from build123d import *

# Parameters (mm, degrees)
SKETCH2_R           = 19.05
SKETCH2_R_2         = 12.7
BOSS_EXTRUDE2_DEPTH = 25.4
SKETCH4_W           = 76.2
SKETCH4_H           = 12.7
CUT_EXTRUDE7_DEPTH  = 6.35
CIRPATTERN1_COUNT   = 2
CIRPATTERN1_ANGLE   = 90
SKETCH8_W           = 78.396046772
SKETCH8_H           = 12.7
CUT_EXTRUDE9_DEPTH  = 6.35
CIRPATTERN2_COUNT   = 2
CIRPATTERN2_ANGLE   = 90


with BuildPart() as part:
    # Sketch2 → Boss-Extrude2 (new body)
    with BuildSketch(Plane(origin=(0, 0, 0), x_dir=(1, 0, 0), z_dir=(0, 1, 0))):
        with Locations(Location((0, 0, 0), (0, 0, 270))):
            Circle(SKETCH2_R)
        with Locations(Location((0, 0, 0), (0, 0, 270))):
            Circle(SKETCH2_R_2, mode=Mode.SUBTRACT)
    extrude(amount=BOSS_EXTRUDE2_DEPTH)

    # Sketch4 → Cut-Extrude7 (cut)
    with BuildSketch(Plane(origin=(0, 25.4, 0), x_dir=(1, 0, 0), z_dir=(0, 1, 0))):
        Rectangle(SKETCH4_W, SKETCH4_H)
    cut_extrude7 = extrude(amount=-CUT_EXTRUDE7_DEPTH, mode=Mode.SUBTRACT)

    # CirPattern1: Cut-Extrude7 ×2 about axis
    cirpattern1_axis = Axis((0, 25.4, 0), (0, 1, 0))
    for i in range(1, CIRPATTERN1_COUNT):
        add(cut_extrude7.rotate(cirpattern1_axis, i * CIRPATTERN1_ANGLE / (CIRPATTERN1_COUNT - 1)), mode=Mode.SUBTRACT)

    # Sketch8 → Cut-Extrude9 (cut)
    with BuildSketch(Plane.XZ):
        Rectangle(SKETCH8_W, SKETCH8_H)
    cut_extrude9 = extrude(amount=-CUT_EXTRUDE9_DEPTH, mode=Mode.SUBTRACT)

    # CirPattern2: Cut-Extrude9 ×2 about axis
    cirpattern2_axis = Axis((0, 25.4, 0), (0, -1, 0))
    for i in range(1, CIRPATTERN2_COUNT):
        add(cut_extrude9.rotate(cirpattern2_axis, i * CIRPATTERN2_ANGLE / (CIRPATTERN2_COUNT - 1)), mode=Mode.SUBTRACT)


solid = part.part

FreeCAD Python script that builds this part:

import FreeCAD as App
import Part
import Sketcher
from FreeCAD import Vector
Q = App.Units.Quantity

doc = App.newDocument("Part")
params = doc.addObject("Spreadsheet::Sheet", "Params")
for row, (alias, value) in enumerate([
    ("sketch1_diameter", "1 in"),
    ("sketch1_diameter2", "1.5 in"),
    ("pad1_length", "1 in"),
    ("sketch2_width", "3 in"),
    ("sketch2_height", "0.5 in"),
    ("pocket1_length", "0.25 in"),
    ("sketch3_height", "0.5 in"),
    ("pocket2_length", "0.25 in"),
], start=1):
    params.set(f"A{row}", alias)
    params.set(f"B{row}", "=" + value)
    params.setAlias(f"B{row}", alias)

body = doc.addObject("PartDesign::Body", "Body")

sketch1 = body.newObject("Sketcher::SketchObject", "Sketch")
sketch1.AttachmentSupport = (doc.getObject("XZ_Plane"), [""])
sketch1.MapMode = "FlatFace"
sketch1.addGeometry(Part.Circle(Vector(0, 0, 0), Vector(0, 0, 1), 19), False)
sketch1.addGeometry(Part.Circle(Vector(0, 0, 0), Vector(0, 0, 1), 13), False)
sketch1.addConstraint(Sketcher.Constraint("Coincident", 0, 3, -1, 1))
sketch1.addConstraint(Sketcher.Constraint("Coincident", 1, 3, -1, 1))
sketch1.addConstraint(Sketcher.Constraint("Diameter", 1, Q("1 in")))
sketch1.addConstraint(Sketcher.Constraint("Diameter", 0, Q("1.5 in")))
sketch1.setExpression("Constraints[2]", "Params.sketch1_diameter")
sketch1.setExpression("Constraints[3]", "Params.sketch1_diameter2")
pad1 = body.newObject("PartDesign::Pad", "Pad")
pad1.Profile = sketch1
pad1.setExpression("Length", "Params.pad1_length")
pad1.Reversed = True

sketch2 = body.newObject("Sketcher::SketchObject", "Sketch001")
sketch2.AttachmentSupport = (doc.getObject("XZ_Plane"), [""])
sketch2.MapMode = "FlatFace"
sketch2.AttachmentOffset = App.Placement(Vector(0, 0, -1 * 25.4), App.Rotation())
sketch2.addGeometry(Part.LineSegment(Vector(-38, -6, 0), Vector(-38, 6, 0)), False)
sketch2.addGeometry(Part.LineSegment(Vector(-38, 6, 0), Vector(38, 6, 0)), False)
sketch2.addGeometry(Part.LineSegment(Vector(38, 6, 0), Vector(38, -6, 0)), False)
sketch2.addGeometry(Part.LineSegment(Vector(38, -6, 0), Vector(-38, -6, 0)), False)
sketch2.addConstraint(Sketcher.Constraint("Coincident", 0, 2, 1, 1))
sketch2.addConstraint(Sketcher.Constraint("Coincident", 1, 2, 2, 1))
sketch2.addConstraint(Sketcher.Constraint("Coincident", 2, 2, 3, 1))
sketch2.addConstraint(Sketcher.Constraint("Coincident", 3, 2, 0, 1))
sketch2.addConstraint(Sketcher.Constraint("Vertical", 0))
sketch2.addConstraint(Sketcher.Constraint("Horizontal", 1))
sketch2.addConstraint(Sketcher.Constraint("Vertical", 2))
sketch2.addConstraint(Sketcher.Constraint("Horizontal", 3))
sketch2.addConstraint(Sketcher.Constraint("Symmetric", 0, 2, 2, 2, -1, 1))
sketch2.addConstraint(Sketcher.Constraint("DistanceX", 1, 1, 1, 2, Q("3 in")))
sketch2.addConstraint(Sketcher.Constraint("DistanceY", 0, 1, 0, 2, Q("0.5 in")))
sketch2.setExpression("Constraints[9]", "Params.sketch2_width")
sketch2.setExpression("Constraints[10]", "Params.sketch2_height")
pocket1 = body.newObject("PartDesign::Pocket", "Pocket")
pocket1.Profile = sketch2
pocket1.setExpression("Length", "Params.pocket1_length")
pocket1.Reversed = True
doc.recompute()

polarpattern = body.newObject("PartDesign::PolarPattern", "PolarPattern")
polarpattern.Originals = [pocket1]
polarpattern.Axis = (doc.getObject("Y_Axis"), [""])
polarpattern.Angle = 90
polarpattern.Occurrences = 2
body.Tip = polarpattern

sketch3 = body.newObject("Sketcher::SketchObject", "Sketch002")
sketch3.AttachmentSupport = (doc.getObject("XZ_Plane"), [""])
sketch3.MapMode = "FlatFace"
sketch3.addGeometry(Part.LineSegment(Vector(-39, 6, 0), Vector(-39, -6, 0)), False)
sketch3.addGeometry(Part.LineSegment(Vector(-39, -6, 0), Vector(39, -6, 0)), False)
sketch3.addGeometry(Part.LineSegment(Vector(39, -6, 0), Vector(39, 6, 0)), False)
sketch3.addGeometry(Part.LineSegment(Vector(39, 6, 0), Vector(-39, 6, 0)), False)
sketch3.addConstraint(Sketcher.Constraint("Coincident", 0, 2, 1, 1))
sketch3.addConstraint(Sketcher.Constraint("Coincident", 1, 2, 2, 1))
sketch3.addConstraint(Sketcher.Constraint("Coincident", 2, 2, 3, 1))
sketch3.addConstraint(Sketcher.Constraint("Coincident", 3, 2, 0, 1))
sketch3.addConstraint(Sketcher.Constraint("Vertical", 0))
sketch3.addConstraint(Sketcher.Constraint("Horizontal", 1))
sketch3.addConstraint(Sketcher.Constraint("Vertical", 2))
sketch3.addConstraint(Sketcher.Constraint("Horizontal", 3))
sketch3.addConstraint(Sketcher.Constraint("Symmetric", 0, 2, 2, 2, -1, 1))
sketch3.addConstraint(Sketcher.Constraint("DistanceY", 0, 2, 0, 1, Q("0.5 in")))
sketch3.addConstraint(Sketcher.Constraint("DistanceX", 1, 1, 1, 2, Q("78.396047 mm")))
sketch3.setExpression("Constraints[9]", "Params.sketch3_height")
pocket2 = body.newObject("PartDesign::Pocket", "Pocket001")
pocket2.Profile = sketch3
pocket2.setExpression("Length", "Params.pocket2_length")
doc.recompute()

polarpattern2 = body.newObject("PartDesign::PolarPattern", "PolarPattern001")
polarpattern2.Originals = [pocket2]
polarpattern2.Axis = (doc.getObject("Y_Axis"), [""])
polarpattern2.Angle = 90
polarpattern2.Occurrences = 2
polarpattern2.Reversed = True
body.Tip = polarpattern2

doc.recompute()
